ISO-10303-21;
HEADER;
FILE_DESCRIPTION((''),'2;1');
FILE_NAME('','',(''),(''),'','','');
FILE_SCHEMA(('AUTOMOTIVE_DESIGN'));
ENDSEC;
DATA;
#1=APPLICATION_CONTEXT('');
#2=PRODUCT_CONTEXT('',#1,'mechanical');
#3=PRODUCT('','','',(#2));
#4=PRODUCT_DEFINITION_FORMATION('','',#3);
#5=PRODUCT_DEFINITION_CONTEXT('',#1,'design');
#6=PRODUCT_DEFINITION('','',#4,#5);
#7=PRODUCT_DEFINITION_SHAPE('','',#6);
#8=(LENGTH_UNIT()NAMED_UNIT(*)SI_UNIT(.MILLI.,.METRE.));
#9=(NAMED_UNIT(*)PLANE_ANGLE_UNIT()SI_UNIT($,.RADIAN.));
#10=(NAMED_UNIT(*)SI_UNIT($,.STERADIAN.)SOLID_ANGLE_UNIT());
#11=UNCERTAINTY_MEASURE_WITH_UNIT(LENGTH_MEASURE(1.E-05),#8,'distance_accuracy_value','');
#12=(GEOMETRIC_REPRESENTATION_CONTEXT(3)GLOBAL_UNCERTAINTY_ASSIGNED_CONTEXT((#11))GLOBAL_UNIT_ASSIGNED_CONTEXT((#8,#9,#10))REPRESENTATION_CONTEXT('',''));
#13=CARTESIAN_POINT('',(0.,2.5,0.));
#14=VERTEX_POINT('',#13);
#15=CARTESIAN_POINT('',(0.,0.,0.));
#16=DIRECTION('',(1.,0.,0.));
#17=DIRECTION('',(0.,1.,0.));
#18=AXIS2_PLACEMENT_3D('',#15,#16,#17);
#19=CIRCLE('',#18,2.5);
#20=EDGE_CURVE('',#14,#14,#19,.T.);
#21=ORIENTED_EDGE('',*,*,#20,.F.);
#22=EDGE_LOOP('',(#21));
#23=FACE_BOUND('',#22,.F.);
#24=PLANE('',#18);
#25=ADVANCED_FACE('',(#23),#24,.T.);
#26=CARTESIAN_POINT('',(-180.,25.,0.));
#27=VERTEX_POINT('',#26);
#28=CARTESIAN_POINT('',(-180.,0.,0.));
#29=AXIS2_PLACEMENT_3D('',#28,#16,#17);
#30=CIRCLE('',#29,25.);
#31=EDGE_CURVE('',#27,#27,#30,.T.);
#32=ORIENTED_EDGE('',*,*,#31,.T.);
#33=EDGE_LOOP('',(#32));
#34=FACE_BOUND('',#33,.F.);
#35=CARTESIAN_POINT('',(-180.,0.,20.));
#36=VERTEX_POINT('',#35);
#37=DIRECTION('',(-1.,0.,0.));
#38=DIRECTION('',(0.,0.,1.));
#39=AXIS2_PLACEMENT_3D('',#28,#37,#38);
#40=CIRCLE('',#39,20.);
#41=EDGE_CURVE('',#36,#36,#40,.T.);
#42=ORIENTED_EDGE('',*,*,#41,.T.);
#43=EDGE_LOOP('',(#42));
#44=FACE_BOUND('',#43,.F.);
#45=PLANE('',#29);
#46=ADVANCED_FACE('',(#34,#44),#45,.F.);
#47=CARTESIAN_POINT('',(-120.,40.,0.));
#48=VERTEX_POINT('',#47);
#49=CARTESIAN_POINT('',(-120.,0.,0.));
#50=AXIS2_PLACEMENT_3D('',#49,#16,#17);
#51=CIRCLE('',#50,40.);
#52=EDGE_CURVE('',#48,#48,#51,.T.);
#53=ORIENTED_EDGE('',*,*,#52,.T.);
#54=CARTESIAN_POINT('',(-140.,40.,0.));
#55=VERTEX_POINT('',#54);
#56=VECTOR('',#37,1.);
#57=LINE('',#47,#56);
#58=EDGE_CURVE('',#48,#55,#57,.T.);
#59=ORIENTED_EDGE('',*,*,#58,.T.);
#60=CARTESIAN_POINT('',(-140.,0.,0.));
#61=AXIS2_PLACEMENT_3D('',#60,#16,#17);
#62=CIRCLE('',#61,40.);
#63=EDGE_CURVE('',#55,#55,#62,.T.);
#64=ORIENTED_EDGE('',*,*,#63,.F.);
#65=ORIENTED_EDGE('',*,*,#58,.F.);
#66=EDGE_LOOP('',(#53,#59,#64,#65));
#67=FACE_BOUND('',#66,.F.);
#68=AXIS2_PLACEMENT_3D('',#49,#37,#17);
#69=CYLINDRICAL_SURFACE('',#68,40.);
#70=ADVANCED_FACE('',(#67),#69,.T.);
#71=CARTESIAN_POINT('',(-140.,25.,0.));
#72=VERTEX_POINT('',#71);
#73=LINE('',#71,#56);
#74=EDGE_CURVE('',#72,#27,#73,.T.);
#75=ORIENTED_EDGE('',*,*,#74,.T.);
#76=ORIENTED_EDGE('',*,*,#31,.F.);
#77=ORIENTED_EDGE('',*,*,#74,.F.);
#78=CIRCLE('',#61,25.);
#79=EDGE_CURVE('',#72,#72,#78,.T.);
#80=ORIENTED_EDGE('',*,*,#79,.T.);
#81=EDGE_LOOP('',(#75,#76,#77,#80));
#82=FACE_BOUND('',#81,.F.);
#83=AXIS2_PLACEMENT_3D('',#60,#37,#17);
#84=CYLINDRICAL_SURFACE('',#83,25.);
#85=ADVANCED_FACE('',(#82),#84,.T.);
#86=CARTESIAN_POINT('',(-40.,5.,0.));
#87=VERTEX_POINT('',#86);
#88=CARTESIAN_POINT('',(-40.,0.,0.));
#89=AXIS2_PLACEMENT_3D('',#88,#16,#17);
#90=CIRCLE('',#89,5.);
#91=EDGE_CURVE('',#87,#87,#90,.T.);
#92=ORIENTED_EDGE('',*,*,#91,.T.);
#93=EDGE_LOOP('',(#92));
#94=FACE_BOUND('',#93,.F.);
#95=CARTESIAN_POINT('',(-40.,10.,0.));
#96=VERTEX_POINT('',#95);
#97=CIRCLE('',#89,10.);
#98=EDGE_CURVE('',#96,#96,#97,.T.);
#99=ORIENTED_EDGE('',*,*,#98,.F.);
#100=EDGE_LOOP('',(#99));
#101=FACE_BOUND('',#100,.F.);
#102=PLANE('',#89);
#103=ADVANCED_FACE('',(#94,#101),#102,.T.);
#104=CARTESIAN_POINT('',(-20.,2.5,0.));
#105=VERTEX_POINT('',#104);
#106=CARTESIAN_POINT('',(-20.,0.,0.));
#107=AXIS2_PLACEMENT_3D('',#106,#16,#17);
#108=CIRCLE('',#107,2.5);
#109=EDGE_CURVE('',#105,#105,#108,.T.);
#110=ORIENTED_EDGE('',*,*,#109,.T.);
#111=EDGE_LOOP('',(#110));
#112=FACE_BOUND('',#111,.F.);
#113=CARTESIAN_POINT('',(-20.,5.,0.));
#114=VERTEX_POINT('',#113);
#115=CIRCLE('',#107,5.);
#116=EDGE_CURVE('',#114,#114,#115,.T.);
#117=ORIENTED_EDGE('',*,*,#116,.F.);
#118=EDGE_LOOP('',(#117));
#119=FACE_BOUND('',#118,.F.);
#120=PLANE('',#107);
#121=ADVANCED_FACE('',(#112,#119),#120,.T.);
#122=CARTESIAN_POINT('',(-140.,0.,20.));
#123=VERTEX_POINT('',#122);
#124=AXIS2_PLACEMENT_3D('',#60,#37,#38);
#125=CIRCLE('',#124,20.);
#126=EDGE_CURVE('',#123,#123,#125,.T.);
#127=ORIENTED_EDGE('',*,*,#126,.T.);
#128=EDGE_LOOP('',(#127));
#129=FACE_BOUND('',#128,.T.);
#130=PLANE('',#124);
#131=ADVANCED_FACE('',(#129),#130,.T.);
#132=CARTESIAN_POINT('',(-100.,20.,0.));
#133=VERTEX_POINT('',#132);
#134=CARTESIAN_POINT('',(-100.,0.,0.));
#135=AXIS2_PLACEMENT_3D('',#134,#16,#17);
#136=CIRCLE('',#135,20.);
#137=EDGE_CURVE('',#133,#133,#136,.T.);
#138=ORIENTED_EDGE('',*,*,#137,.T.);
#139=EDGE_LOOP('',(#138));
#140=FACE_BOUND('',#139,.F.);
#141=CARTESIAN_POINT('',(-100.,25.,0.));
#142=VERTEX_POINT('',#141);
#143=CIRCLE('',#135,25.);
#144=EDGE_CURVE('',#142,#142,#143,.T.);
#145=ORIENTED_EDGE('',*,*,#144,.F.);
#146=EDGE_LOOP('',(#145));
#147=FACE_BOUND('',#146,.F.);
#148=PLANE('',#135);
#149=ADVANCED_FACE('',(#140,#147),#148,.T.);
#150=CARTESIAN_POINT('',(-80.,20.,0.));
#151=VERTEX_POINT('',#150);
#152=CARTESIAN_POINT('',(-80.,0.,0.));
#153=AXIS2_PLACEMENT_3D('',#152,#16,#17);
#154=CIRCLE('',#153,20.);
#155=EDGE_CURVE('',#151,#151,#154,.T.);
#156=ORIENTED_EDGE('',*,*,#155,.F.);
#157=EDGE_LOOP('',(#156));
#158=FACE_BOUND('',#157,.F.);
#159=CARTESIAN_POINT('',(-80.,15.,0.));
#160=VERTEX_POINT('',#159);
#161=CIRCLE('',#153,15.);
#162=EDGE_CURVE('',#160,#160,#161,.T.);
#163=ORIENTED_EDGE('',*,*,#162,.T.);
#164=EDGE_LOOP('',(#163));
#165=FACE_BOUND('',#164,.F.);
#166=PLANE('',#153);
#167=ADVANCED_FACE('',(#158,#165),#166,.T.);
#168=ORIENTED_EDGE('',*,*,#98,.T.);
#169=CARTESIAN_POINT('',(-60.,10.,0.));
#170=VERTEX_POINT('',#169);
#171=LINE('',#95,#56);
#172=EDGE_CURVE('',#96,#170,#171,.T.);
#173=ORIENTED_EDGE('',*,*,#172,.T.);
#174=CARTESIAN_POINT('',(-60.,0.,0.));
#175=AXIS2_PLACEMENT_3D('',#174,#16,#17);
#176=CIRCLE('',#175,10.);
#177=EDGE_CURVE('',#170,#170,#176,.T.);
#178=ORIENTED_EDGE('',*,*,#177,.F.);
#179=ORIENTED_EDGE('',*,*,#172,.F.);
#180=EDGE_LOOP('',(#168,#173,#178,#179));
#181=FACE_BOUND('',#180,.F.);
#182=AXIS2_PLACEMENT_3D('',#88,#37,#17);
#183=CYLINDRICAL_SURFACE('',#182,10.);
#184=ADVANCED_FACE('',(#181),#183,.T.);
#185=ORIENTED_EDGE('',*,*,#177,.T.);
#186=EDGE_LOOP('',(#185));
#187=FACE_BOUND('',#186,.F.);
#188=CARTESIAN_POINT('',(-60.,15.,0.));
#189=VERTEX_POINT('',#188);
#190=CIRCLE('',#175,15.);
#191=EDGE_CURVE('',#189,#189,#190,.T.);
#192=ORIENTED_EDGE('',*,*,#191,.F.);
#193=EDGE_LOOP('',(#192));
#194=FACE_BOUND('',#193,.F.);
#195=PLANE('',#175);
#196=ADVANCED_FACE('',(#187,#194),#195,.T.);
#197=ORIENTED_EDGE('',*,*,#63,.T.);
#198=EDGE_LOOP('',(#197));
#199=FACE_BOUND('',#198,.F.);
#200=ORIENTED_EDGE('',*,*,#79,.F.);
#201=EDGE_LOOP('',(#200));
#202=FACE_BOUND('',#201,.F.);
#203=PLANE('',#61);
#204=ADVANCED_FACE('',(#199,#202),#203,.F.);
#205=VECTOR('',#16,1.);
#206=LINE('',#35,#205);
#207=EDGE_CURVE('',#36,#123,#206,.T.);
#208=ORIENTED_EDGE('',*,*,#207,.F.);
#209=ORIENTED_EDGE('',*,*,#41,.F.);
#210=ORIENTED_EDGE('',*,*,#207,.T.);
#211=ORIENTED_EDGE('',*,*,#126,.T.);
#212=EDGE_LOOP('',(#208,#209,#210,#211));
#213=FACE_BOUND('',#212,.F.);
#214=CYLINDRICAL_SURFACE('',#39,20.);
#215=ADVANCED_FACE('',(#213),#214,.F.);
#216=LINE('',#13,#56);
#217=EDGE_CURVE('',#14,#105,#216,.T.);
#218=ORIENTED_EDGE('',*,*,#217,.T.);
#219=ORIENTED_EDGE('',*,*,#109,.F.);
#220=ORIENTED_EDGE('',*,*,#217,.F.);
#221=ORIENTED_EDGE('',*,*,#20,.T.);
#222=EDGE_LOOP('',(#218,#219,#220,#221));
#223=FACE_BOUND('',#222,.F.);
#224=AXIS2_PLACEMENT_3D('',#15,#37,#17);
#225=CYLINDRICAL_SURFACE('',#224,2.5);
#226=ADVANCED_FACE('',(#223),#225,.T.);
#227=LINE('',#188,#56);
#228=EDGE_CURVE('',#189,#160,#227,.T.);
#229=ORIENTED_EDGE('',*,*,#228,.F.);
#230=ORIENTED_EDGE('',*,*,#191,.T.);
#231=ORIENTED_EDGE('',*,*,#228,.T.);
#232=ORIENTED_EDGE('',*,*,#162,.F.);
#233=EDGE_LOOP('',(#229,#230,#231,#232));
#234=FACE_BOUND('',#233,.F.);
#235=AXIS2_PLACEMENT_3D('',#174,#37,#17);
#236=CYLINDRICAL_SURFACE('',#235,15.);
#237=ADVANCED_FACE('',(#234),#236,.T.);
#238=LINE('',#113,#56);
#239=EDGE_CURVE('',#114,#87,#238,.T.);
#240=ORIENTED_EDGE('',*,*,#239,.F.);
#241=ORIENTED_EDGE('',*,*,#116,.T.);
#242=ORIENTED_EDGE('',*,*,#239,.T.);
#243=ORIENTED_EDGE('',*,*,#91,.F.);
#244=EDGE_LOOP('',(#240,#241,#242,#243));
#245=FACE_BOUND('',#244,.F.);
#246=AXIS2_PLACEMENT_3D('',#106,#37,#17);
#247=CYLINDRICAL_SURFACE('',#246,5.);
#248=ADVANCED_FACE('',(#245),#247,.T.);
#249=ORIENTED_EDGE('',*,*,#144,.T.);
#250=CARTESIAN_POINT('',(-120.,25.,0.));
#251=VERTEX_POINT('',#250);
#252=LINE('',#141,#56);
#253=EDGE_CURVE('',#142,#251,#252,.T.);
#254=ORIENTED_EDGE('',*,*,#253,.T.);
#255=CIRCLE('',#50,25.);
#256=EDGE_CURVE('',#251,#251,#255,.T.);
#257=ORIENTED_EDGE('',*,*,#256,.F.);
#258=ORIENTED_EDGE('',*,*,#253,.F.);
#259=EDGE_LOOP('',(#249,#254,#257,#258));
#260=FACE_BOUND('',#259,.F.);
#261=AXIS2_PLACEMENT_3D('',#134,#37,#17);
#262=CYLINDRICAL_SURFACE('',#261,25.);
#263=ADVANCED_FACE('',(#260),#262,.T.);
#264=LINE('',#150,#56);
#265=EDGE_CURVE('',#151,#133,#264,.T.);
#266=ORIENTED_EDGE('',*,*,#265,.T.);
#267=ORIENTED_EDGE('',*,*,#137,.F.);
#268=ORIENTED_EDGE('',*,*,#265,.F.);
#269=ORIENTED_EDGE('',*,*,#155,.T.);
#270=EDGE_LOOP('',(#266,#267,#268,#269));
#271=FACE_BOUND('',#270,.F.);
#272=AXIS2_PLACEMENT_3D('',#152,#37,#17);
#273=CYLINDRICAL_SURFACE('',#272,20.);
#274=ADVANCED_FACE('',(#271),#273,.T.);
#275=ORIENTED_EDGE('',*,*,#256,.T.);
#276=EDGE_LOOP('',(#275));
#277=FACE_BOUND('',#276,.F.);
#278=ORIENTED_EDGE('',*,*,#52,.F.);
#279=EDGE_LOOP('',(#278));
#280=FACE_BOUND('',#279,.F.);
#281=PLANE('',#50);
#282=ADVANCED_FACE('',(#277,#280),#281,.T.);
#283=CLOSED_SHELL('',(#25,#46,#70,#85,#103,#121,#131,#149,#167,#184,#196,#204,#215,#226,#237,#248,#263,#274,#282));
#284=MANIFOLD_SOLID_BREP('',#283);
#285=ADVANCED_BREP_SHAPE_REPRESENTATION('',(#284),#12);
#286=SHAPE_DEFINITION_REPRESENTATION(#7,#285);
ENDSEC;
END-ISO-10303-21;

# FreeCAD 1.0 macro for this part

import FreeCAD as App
import Part
import Sketcher
from FreeCAD import Vector
Q = App.Units.Quantity

doc = App.newDocument("Part")
body = doc.addObject("PartDesign::Body", "Body")

sketch1 = body.newObject("Sketcher::SketchObject", "Sketch")
sketch1.AttachmentSupport = (doc.getObject("XY_Plane"), [""])
sketch1.MapMode = "FlatFace"
sketch1.addGeometry([
    Part.LineSegment(Vector(0, 0, 0), Vector(0, 2.5, 0)),
    Part.LineSegment(Vector(0, 2.5, 0), Vector(-20, 2.5, 0)),
    Part.LineSegment(Vector(-20, 2.5, 0), Vector(-20, 5, 0)),
    Part.LineSegment(Vector(-20, 5, 0), Vector(-40, 5, 0)),
    Part.LineSegment(Vector(-40, 5, 0), Vector(-40, 10, 0)),
    Part.LineSegment(Vector(-40, 10, 0), Vector(-60, 10, 0)),
    Part.LineSegment(Vector(-60, 10, 0), Vector(-60, 15, 0)),
    Part.LineSegment(Vector(-60, 15, 0), Vector(-80, 15, 0)),
    Part.LineSegment(Vector(-80, 15, 0), Vector(-80, 20, 0)),
    Part.LineSegment(Vector(-80, 20, 0), Vector(-100, 20, 0)),
    Part.LineSegment(Vector(-100, 20, 0), Vector(-100, 25, 0)),
    Part.LineSegment(Vector(-100, 25, 0), Vector(-120, 25, 0)),
    Part.LineSegment(Vector(-120, 25, 0), Vector(-120, 40, 0)),
    Part.LineSegment(Vector(-120, 40, 0), Vector(-140, 40, 0)),
    Part.LineSegment(Vector(-140, 40, 0), Vector(-140, 25, 0)),
    Part.LineSegment(Vector(-140, 25, 0), Vector(-180, 25, 0)),
    Part.LineSegment(Vector(-180, 25, 0), Vector(-180, 0, 0)),
    Part.LineSegment(Vector(-180, 0, 0), Vector(0, 0, 0)),
], False)
sketch1.addConstraint([
    Sketcher.Constraint("Coincident", 0, 2, 1, 1),
    Sketcher.Constraint("Coincident", 1, 2, 2, 1),
    Sketcher.Constraint("Coincident", 2, 2, 3, 1),
    Sketcher.Constraint("Coincident", 3, 2, 4, 1),
    Sketcher.Constraint("Coincident", 4, 2, 5, 1),
    Sketcher.Constraint("Coincident", 5, 2, 6, 1),
    Sketcher.Constraint("Coincident", 6, 2, 7, 1),
    Sketcher.Constraint("Coincident", 7, 2, 8, 1),
    Sketcher.Constraint("Coincident", 8, 2, 9, 1),
    Sketcher.Constraint("Coincident", 9, 2, 10, 1),
    Sketcher.Constraint("Coincident", 10, 2, 11, 1),
    Sketcher.Constraint("Coincident", 11, 2, 12, 1),
    Sketcher.Constraint("Coincident", 12, 2, 13, 1),
    Sketcher.Constraint("Coincident", 13, 2, 14, 1),
    Sketcher.Constraint("Coincident", 14, 2, 15, 1),
    Sketcher.Constraint("Coincident", 15, 2, 16, 1),
    Sketcher.Constraint("Coincident", 16, 2, 17, 1),
    Sketcher.Constraint("Coincident", 17, 2, 0, 1),
    Sketcher.Constraint("Vertical", 0),
    Sketcher.Constraint("Horizontal", 1),
    Sketcher.Constraint("Vertical", 2),
    Sketcher.Constraint("Horizontal", 3),
    Sketcher.Constraint("Vertical", 4),
    Sketcher.Constraint("Horizontal", 5),
    Sketcher.Constraint("Vertical", 6),
    Sketcher.Constraint("Horizontal", 7),
    Sketcher.Constraint("Vertical", 8),
    Sketcher.Constraint("Horizontal", 9),
    Sketcher.Constraint("Vertical", 10),
    Sketcher.Constraint("Horizontal", 11),
    Sketcher.Constraint("Vertical", 12),
    Sketcher.Constraint("Horizontal", 13),
    Sketcher.Constraint("Vertical", 14),
    Sketcher.Constraint("Horizontal", 15),
    Sketcher.Constraint("Vertical", 16),
    Sketcher.Constraint("Horizontal", 17),
    Sketcher.Constraint("Coincident", 17, 2, -1, 1),
    Sketcher.Constraint("Horizontal", 11, 2, 14, 2),
    Sketcher.Constraint("Equal", 1, 3),
    Sketcher.Constraint("Equal", 3, 5),
    Sketcher.Constraint("Equal", 5, 7),
    Sketcher.Constraint("Equal", 7, 9),
    Sketcher.Constraint("Equal", 9, 11),
    Sketcher.Constraint("Equal", 11, 13),
    Sketcher.Constraint("Equal", 0, 2),
    Sketcher.Constraint("Equal", 4, 6),
    Sketcher.Constraint("Equal", 6, 8),
    Sketcher.Constraint("Equal", 8, 10),
    Sketcher.Constraint("DistanceX", 1, 2, 1, 1, Q("20 mm")),
    Sketcher.Constraint("DistanceX", 15, 2, 15, 1, Q("40 mm")),
    Sketcher.Constraint("DistanceY", 4, 1, 4, 2, Q("5 mm")),
    Sketcher.Constraint("DistanceY", 12, 1, 12, 2, Q("15 mm")),
    Sketcher.Constraint("DistanceY", 16, 2, 16, 1, Q("25 mm")),
])
revolution = body.newObject("PartDesign::Revolution", "Revolution")
revolution.Profile = sketch1
revolution.ReferenceAxis = (sketch1, ["H_Axis"])
revolution.Angle = 360

sketch2 = body.newObject("Sketcher::SketchObject", "Sketch001")
sketch2.AttachmentSupport = (doc.getObject("YZ_Plane"), [""])
sketch2.MapMode = "FlatFace"
sketch2.AttachmentOffset = App.Placement(Vector(0, 0, -180), App.Rotation())
sketch2.addGeometry(Part.Circle(Vector(0, 0, 0), Vector(0, 0, 1), 20), False)
sketch2.addConstraint([
    Sketcher.Constraint("Coincident", 0, 3, -1, 1),
    Sketcher.Constraint("Diameter", 0, Q("40 mm")),
])
pocket1 = body.newObject("PartDesign::Pocket", "Pocket")
pocket1.Profile = sketch2
pocket1.Length = 40
pocket1.Reversed = True

doc.recompute()
